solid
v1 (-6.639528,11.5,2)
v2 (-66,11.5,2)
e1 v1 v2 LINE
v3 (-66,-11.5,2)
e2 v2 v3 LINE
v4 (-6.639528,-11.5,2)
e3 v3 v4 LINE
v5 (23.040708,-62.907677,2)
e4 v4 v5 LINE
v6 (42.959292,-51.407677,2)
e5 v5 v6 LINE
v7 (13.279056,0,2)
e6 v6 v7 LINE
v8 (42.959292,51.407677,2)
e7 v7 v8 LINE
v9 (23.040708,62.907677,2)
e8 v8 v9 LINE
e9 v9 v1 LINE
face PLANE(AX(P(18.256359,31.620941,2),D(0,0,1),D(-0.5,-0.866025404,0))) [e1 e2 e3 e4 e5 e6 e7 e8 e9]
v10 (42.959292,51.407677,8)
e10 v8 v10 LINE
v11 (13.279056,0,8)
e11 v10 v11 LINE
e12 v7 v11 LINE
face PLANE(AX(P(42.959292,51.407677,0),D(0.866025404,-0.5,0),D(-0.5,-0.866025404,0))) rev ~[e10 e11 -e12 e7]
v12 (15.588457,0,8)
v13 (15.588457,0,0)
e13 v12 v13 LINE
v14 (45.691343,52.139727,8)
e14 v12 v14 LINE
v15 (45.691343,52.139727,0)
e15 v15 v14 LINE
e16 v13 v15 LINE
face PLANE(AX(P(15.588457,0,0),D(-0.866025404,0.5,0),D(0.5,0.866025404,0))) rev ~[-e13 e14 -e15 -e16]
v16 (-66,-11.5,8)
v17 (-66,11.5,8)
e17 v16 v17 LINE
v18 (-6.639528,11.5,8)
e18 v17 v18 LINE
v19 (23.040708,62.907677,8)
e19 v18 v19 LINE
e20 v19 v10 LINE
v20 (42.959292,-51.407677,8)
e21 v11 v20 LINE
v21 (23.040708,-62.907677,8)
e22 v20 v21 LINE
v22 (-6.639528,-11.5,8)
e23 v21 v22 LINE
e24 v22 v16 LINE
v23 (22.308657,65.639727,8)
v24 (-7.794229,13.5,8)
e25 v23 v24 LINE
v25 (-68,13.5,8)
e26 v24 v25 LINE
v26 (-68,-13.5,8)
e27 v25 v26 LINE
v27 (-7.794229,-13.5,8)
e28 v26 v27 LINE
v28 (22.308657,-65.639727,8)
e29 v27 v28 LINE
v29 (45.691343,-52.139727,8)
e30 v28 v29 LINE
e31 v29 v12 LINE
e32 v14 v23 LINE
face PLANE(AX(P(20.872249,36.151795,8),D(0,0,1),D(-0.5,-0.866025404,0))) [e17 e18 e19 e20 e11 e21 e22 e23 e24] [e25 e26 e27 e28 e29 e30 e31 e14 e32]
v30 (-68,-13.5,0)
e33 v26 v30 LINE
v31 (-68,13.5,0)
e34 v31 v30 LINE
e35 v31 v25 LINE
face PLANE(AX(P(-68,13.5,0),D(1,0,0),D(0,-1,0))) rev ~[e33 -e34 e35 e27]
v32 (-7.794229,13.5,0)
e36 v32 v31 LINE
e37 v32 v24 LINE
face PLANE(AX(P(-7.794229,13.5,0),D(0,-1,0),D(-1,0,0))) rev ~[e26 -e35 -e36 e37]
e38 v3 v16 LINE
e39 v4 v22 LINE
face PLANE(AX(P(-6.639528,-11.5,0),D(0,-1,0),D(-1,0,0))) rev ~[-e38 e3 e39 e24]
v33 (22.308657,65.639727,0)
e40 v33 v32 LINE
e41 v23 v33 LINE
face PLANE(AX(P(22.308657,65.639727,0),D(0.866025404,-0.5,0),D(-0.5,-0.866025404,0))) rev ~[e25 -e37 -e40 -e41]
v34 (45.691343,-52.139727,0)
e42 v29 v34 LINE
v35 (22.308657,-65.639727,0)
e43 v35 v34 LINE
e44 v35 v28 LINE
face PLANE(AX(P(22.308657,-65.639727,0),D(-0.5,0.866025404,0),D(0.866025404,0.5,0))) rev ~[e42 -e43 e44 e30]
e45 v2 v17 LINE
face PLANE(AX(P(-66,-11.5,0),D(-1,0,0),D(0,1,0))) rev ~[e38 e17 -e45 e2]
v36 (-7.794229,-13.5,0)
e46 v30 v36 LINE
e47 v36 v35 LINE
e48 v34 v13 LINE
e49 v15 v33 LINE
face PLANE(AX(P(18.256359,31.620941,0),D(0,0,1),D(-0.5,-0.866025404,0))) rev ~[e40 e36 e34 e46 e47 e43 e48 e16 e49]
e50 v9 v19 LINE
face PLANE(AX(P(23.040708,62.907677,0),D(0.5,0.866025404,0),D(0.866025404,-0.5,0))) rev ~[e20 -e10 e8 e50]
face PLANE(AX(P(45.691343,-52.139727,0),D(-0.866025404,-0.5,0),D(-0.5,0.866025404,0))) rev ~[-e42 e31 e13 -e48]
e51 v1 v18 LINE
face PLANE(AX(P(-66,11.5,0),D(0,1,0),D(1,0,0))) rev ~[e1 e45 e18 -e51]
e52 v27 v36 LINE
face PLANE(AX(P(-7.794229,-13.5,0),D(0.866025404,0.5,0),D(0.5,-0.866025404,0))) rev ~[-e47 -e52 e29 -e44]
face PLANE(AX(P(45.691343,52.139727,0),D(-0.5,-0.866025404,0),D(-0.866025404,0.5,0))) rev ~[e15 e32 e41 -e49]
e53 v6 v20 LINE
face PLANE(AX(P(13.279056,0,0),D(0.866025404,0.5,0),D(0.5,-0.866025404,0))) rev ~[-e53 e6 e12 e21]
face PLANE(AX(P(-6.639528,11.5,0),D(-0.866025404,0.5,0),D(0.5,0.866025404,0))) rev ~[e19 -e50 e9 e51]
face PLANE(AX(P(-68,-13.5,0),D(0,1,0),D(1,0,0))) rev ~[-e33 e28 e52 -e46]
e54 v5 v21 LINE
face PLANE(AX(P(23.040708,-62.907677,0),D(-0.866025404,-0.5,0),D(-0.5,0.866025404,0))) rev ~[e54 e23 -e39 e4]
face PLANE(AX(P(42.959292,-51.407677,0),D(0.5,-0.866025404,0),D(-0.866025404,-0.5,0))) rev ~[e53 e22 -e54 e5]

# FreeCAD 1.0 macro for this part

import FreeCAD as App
import Part
import Sketcher
from FreeCAD import Vector
Q = App.Units.Quantity

doc = App.newDocument("Part")
body = doc.addObject("PartDesign::Body", "Body")

# Sketch on XY plane
sketch1 = doc.addObject("Sketcher::SketchObject", "Sketch")
body.addObject(sketch1)
sketch1.AttachmentSupport = (doc.XY_Plane, [""])
sketch1.MapMode = "FlatFace"
sketch1.addGeometry(Part.LineSegment(Vector(-6.6, 11.5, 0), Vector(-7.8, 13.5, 0)), False)
sketch1.addGeometry(Part.LineSegment(Vector(-7.8, 13.5, 0), Vector(-68, 13.5, 0)), False)
sketch1.addGeometry(Part.LineSegment(Vector(-68, 13.5, 0), Vector(-68, -13.5, 0)), False)
sketch1.addGeometry(Part.LineSegment(Vector(-68, -13.5, 0), Vector(-7.8, -13.5, 0)), False)
sketch1.addGeometry(Part.LineSegment(Vector(-7.8, -13.5, 0), Vector(-6.6, -11.5, 0)), False)
sketch1.addGeometry(Part.LineSegment(Vector(-6.6, -11.5, 0), Vector(-66, -11.5, 0)), False)
sketch1.addGeometry(Part.LineSegment(Vector(-66, -11.5, 0), Vector(-66, 11.5, 0)), False)
sketch1.addGeometry(Part.LineSegment(Vector(-66, 11.5, 0), Vector(-6.6, 11.5, 0)), False)
sketch1.addConstraint(Sketcher.Constraint("Coincident", 0, 2, 1, 1))
sketch1.addConstraint(Sketcher.Constraint("Coincident", 1, 2, 2, 1))
sketch1.addConstraint(Sketcher.Constraint("Coincident", 2, 2, 3, 1))
sketch1.addConstraint(Sketcher.Constraint("Coincident", 3, 2, 4, 1))
sketch1.addConstraint(Sketcher.Constraint("Coincident", 4, 2, 5, 1))
sketch1.addConstraint(Sketcher.Constraint("Coincident", 5, 2, 6, 1))
sketch1.addConstraint(Sketcher.Constraint("Coincident", 6, 2, 7, 1))
sketch1.addConstraint(Sketcher.Constraint("Coincident", 7, 2, 0, 1))
sketch1.addConstraint(Sketcher.Constraint("Horizontal", 1))
sketch1.addConstraint(Sketcher.Constraint("Vertical", 2))
sketch1.addConstraint(Sketcher.Constraint("Horizontal", 3))
sketch1.addConstraint(Sketcher.Constraint("Horizontal", 5))
sketch1.addConstraint(Sketcher.Constraint("Vertical", 6))
sketch1.addConstraint(Sketcher.Constraint("Horizontal", 7))
sketch1.addConstraint(Sketcher.Constraint("Symmetric", 0, 2, 3, 2, -1))
sketch1.addConstraint(Sketcher.Constraint("Symmetric", 4, 2, 7, 2, -1))
sketch1.addConstraint(Sketcher.Constraint("DistanceY", 2, 2, 2, 1, Q("27 mm")))
sketch1.addConstraint(Sketcher.Constraint("DistanceY", 6, 1, 6, 2, Q("23 mm")))
sketch1.addConstraint(Sketcher.Constraint("Angle", 0, Q("120 deg")))
sketch1.addConstraint(Sketcher.Constraint("DistanceX", 1, 2, -1, 1, Q("68 mm")))
sketch1.addConstraint(Sketcher.Constraint("DistanceX", 5, 2, -1, 1, Q("66 mm")))
sketch1.addConstraint(Sketcher.Constraint("DistanceX", 1, 2, 1, 1, Q("60.205771 mm")))
pad1 = doc.addObject("PartDesign::Pad", "Pad")
body.addObject(pad1)
pad1.Profile = sketch1
pad1.Length = 8
body2 = doc.addObject("PartDesign::Body", "Body001")

# Sketch on XY plane
sketch2 = doc.addObject("Sketcher::SketchObject", "Sketch001")
body2.addObject(sketch2)
sketch2.AttachmentSupport = (doc.getObject("XY_Plane001"), [""])
sketch2.MapMode = "FlatFace"
sketch2.addGeometry(Part.LineSegment(Vector(0, 0, 0), Vector(-8, 14, 0)), False)
sketch2.addGeometry(Part.LineSegment(Vector(-8, 14, 0), Vector(-68, 14, 0)), False)
sketch2.addGeometry(Part.LineSegment(Vector(-68, 14, 0), Vector(-68, -14, 0)), False)
sketch2.addGeometry(Part.LineSegment(Vector(-68, -14, 0), Vector(-8, -14, 0)), False)
sketch2.addGeometry(Part.LineSegment(Vector(-8, -14, 0), Vector(0, 0, 0)), False)
sketch2.addConstraint(Sketcher.Constraint("Coincident", 0, 2, 1, 1))
sketch2.addConstraint(Sketcher.Constraint("Coincident", 1, 2, 2, 1))
sketch2.addConstraint(Sketcher.Constraint("Coincident", 2, 2, 3, 1))
sketch2.addConstraint(Sketcher.Constraint("Coincident", 3, 2, 4, 1))
sketch2.addConstraint(Sketcher.Constraint("Coincident", 4, 2, 0, 1))
sketch2.addConstraint(Sketcher.Constraint("Horizontal", 1))
sketch2.addConstraint(Sketcher.Constraint("Vertical", 2))
sketch2.addConstraint(Sketcher.Constraint("Horizontal", 3))
sketch2.addConstraint(Sketcher.Constraint("Coincident", 4, 2, -1, 1))
sketch2.addConstraint(Sketcher.Constraint("Symmetric", 0, 2, 3, 2, -1))
sketch2.addConstraint(Sketcher.Constraint("DistanceY", 2, 2, 2, 1, Q("27 mm")))
sketch2.addConstraint(Sketcher.Constraint("Angle", 0, Q("120 deg")))
sketch2.addConstraint(Sketcher.Constraint("DistanceX", 1, 2, -1, 1, Q("68 mm")))
pad2 = doc.addObject("PartDesign::Pad", "Pad001")
body2.addObject(pad2)
pad2.Profile = sketch2
pad2.Length = 2
doc.recompute()

boolean = doc.addObject("PartDesign::Boolean", "Boolean")
body2.addObject(boolean)
boolean.Type = "Fuse"
boolean.addObjects([body])
body3 = doc.addObject("PartDesign::Body", "Body002")
doc.recompute()

body3.BaseFeature = body2
doc.recompute()

body4 = doc.addObject("PartDesign::Body", "Body003")
body4.BaseFeature = body2
body4.Placement = App.Placement(Vector(0, 0, 0), App.Rotation(Vector(0, 0, 1), 120))
boolean2 = doc.addObject("PartDesign::Boolean", "Boolean001")
body3.addObject(boolean2)
boolean2.Type = "Fuse"
boolean2.addObjects([body4])
doc.recompute()

body2.Placement = App.Placement(Vector(0, 0, 0), App.Rotation(Vector(0, 0, 1), 240))
boolean3 = doc.addObject("PartDesign::Boolean", "Boolean002")
body3.addObject(boolean3)
boolean3.Type = "Fuse"
boolean3.addObjects([body2])

doc.recompute()
